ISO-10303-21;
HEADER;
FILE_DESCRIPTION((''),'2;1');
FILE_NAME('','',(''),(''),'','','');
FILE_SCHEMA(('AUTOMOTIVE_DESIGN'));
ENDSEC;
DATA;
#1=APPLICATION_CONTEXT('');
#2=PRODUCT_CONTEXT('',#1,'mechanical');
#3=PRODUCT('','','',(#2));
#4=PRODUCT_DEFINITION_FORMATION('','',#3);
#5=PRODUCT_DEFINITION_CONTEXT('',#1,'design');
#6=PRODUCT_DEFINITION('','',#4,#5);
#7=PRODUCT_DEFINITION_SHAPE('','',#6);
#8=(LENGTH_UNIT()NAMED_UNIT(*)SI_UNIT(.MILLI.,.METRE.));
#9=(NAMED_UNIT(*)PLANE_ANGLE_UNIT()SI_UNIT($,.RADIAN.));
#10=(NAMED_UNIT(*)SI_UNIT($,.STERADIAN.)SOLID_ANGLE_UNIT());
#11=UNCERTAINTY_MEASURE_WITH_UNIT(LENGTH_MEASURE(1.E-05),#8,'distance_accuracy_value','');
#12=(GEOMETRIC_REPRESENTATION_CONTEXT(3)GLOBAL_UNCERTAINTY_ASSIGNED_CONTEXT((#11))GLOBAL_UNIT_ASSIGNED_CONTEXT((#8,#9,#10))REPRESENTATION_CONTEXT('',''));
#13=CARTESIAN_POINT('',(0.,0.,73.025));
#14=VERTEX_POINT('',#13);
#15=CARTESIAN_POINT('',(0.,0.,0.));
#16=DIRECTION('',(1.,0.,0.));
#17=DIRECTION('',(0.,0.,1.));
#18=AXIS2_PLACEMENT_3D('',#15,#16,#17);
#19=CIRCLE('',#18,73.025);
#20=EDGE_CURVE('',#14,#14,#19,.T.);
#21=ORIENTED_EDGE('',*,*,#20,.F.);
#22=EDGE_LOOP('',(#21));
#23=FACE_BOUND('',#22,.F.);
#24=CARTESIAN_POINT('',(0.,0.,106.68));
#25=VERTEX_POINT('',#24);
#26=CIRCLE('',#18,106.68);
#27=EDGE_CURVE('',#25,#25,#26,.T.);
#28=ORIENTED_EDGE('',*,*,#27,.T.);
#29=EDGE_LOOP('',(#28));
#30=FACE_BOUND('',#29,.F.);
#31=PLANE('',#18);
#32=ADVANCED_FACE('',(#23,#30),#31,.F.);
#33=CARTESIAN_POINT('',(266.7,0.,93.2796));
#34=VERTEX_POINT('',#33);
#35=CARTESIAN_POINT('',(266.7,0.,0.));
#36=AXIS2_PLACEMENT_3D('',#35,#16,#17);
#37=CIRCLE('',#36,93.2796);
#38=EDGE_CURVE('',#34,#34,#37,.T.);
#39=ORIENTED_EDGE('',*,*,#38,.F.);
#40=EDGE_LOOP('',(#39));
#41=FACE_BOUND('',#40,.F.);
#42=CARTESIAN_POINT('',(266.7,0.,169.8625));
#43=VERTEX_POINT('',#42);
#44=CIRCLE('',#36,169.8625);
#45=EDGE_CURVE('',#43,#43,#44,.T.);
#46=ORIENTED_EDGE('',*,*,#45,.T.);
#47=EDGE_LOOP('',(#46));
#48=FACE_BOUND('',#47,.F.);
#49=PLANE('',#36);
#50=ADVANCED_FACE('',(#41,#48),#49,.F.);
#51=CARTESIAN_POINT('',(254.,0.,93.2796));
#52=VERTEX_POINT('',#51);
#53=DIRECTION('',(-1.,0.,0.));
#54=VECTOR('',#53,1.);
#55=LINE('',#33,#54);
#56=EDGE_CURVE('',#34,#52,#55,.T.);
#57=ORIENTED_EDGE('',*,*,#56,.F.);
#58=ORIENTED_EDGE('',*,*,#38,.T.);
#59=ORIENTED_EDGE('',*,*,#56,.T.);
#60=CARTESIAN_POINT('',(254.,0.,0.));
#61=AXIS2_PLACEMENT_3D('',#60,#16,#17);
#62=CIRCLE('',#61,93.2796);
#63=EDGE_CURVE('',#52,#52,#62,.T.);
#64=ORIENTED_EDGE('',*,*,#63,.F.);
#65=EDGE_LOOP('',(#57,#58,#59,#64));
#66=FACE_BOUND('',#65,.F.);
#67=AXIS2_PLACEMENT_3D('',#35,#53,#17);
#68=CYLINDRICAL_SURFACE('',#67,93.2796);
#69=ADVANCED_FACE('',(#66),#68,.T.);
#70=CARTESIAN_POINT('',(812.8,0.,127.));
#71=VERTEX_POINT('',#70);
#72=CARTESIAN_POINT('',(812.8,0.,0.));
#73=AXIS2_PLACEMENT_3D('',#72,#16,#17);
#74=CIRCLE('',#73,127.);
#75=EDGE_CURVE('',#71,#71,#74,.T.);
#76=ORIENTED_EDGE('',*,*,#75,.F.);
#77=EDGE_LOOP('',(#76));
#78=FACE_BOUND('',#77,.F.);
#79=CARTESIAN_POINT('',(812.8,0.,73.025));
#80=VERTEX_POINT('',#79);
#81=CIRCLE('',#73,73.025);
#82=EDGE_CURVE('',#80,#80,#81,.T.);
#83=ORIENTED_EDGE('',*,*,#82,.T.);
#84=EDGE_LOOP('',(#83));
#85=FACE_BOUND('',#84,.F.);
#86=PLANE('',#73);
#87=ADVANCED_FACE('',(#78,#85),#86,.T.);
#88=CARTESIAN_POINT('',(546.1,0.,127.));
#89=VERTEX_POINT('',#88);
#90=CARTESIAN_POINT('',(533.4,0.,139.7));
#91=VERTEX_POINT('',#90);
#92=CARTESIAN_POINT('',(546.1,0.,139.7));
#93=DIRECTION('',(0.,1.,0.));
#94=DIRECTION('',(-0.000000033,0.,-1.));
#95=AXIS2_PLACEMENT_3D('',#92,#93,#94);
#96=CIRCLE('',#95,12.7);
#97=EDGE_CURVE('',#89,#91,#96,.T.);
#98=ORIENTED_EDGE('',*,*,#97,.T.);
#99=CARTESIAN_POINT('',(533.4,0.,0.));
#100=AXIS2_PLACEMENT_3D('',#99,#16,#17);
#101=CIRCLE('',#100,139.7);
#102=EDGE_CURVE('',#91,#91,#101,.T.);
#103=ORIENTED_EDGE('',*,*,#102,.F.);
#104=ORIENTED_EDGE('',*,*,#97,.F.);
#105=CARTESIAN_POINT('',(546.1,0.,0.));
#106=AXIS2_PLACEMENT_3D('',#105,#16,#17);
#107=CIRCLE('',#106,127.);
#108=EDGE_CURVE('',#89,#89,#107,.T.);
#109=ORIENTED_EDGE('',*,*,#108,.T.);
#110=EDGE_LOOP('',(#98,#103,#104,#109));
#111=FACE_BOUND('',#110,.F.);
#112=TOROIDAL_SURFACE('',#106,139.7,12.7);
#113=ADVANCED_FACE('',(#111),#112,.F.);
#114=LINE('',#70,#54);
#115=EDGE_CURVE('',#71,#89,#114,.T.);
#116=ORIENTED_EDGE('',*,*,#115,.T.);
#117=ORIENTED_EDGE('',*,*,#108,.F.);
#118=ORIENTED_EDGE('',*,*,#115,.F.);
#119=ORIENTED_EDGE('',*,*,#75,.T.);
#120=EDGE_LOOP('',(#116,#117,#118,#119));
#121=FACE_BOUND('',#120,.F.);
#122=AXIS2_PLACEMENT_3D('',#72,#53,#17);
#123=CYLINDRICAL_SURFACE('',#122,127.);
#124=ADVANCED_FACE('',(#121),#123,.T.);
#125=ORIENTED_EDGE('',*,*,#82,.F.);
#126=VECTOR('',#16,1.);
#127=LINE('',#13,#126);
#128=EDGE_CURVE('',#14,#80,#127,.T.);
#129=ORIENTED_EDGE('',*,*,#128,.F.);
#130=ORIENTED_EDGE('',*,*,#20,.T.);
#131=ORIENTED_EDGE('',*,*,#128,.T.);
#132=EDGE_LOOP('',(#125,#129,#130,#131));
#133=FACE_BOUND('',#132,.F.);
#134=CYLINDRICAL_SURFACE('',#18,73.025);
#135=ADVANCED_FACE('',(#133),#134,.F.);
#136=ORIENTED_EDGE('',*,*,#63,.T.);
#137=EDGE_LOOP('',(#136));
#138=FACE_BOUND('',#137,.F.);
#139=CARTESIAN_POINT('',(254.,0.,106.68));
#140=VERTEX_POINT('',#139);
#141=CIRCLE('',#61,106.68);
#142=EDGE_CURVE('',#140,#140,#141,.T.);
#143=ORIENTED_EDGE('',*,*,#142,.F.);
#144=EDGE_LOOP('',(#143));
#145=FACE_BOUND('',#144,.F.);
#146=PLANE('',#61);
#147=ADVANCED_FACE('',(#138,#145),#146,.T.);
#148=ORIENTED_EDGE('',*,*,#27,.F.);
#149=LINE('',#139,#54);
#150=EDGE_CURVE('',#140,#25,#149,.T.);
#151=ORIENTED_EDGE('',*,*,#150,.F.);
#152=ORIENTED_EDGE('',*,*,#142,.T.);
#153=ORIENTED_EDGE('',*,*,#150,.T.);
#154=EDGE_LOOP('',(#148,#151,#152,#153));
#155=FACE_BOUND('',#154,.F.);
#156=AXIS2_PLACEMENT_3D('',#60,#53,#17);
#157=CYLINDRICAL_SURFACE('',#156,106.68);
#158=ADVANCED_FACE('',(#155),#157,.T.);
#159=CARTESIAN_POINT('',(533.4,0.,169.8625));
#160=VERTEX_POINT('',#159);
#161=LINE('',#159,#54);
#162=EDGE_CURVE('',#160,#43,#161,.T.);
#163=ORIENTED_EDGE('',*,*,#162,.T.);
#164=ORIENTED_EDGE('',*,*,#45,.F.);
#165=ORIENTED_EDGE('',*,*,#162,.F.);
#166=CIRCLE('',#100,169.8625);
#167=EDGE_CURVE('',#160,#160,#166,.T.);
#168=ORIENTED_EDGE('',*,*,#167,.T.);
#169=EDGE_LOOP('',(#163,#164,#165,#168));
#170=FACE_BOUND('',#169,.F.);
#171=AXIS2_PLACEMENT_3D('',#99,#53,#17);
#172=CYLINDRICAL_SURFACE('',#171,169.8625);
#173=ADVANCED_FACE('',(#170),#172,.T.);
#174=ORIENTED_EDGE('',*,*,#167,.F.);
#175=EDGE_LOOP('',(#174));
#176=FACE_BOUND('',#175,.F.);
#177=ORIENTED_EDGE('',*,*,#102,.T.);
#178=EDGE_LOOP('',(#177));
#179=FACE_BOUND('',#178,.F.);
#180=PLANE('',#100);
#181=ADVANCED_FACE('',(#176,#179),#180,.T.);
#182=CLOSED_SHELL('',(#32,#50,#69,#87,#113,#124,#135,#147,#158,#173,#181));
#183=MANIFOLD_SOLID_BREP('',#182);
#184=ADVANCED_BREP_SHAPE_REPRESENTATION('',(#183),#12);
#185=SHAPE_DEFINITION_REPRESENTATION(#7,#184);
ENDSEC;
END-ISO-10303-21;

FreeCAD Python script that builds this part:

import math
import FreeCAD as App
import Part
import Sketcher
from FreeCAD import Vector
Q = App.Units.Quantity

doc = App.newDocument("Part")
params = doc.addObject("Spreadsheet::Sheet", "Params")
for row, (alias, value) in enumerate([
    ("sketch1_radius", "0.5 in"),
    ("sketch1_width", "32 in"),
    ("sketch1_width2", "10 in"),
    ("sketch1_width3", "10.5 in"),
    ("sketch1_height", "1.325 in"),
    ("revolution_angle", "360 deg"),
], start=1):
    params.set(f"A{row}", alias)
    params.set(f"B{row}", "=" + value)
    params.setAlias(f"B{row}", alias)

body = doc.addObject("PartDesign::Body", "Body")

# Sketch on XZ plane
sketch1 = doc.addObject("Sketcher::SketchObject", "Sketch")
body.addObject(sketch1)
sketch1.AttachmentSupport = (doc.XZ_Plane, [""])
sketch1.MapMode = "FlatFace"
sketch1.addGeometry([
    Part.LineSegment(Vector(0, 107, 0), Vector(0, 73, 0)),  # 0
    Part.LineSegment(Vector(0, 73, 0), Vector(813, 73, 0)),  # 1
    Part.LineSegment(Vector(813, 73, 0), Vector(813, 127, 0)),  # 2
    Part.LineSegment(Vector(813, 127, 0), Vector(546, 127, 0)),  # 3
    Part.ArcOfCircle(Part.Circle(Vector(546, 140, 0), Vector(0, 0, 1), 13), math.radians(-180), math.radians(-90)),  # 4
    Part.LineSegment(Vector(533, 140, 0), Vector(533, 170, 0)),  # 5
    Part.LineSegment(Vector(533, 170, 0), Vector(267, 170, 0)),  # 6
    Part.LineSegment(Vector(267, 170, 0), Vector(267, 93, 0)),  # 7
    Part.LineSegment(Vector(267, 93, 0), Vector(254, 93, 0)),  # 8
    Part.LineSegment(Vector(254, 93, 0), Vector(254, 107, 0)),  # 9
    Part.LineSegment(Vector(254, 107, 0), Vector(0, 107, 0)),  # 10
], False)
sketch1.addConstraint([
    Sketcher.Constraint("Coincident", 0, 2, 1, 1),
    Sketcher.Constraint("Coincident", 1, 2, 2, 1),
    Sketcher.Constraint("Coincident", 2, 2, 3, 1),
    Sketcher.Constraint("Tangent", 3, 2, 4, 2),
    Sketcher.Constraint("Tangent", 4, 1, 5, 1),
    Sketcher.Constraint("Coincident", 5, 2, 6, 1),
    Sketcher.Constraint("Coincident", 6, 2, 7, 1),
    Sketcher.Constraint("Coincident", 7, 2, 8, 1),
    Sketcher.Constraint("Coincident", 8, 2, 9, 1),
    Sketcher.Constraint("Coincident", 9, 2, 10, 1),
    Sketcher.Constraint("Coincident", 10, 2, 0, 1),
    Sketcher.Constraint("Vertical", 0),
    Sketcher.Constraint("Horizontal", 1),
    Sketcher.Constraint("Vertical", 2),
    Sketcher.Constraint("Horizontal", 3),
    Sketcher.Constraint("Vertical", 5),
    Sketcher.Constraint("Horizontal", 6),
    Sketcher.Constraint("Vertical", 7),
    Sketcher.Constraint("Horizontal", 8),
    Sketcher.Constraint("Vertical", 9),
    Sketcher.Constraint("Horizontal", 10),
    Sketcher.Constraint("PointOnObject", 0, 2, -2),
    Sketcher.Constraint("Equal", 3, 6),
    Sketcher.Constraint("Radius", 4, Q("0.5 in")),
    Sketcher.Constraint("DistanceX", 1, 1, 1, 2, Q("32 in")),
    Sketcher.Constraint("DistanceX", 10, 2, 10, 1, Q("10 in")),
    Sketcher.Constraint("DistanceX", 3, 2, 3, 1, Q("10.5 in")),
    Sketcher.Constraint("DistanceY", -1, 1, 2, 2, Q("5 in")),
    Sketcher.Constraint("DistanceY", -1, 1, 9, 2, Q("4.2 in")),
    Sketcher.Constraint("DistanceY", 0, 2, 0, 1, Q("1.325 in")),
    Sketcher.Constraint("DistanceY", 5, 1, 5, 2, Q("1.1875 in")),
    Sketcher.Constraint("DistanceY", 7, 2, 7, 1, Q("76.5829 mm")),
])
sketch1.setExpression("Constraints[23]", "Params.sketch1_radius")
sketch1.setExpression("Constraints[24]", "Params.sketch1_width")
sketch1.setExpression("Constraints[25]", "Params.sketch1_width2")
sketch1.setExpression("Constraints[26]", "Params.sketch1_width3")
sketch1.setExpression("Constraints[29]", "Params.sketch1_height")
revolution = doc.addObject("PartDesign::Revolution", "Revolution")
body.addObject(revolution)
revolution.Profile = sketch1
revolution.ReferenceAxis = (sketch1, ["H_Axis"])
revolution.setExpression("Angle", "Params.revolution_angle")

doc.recompute()
